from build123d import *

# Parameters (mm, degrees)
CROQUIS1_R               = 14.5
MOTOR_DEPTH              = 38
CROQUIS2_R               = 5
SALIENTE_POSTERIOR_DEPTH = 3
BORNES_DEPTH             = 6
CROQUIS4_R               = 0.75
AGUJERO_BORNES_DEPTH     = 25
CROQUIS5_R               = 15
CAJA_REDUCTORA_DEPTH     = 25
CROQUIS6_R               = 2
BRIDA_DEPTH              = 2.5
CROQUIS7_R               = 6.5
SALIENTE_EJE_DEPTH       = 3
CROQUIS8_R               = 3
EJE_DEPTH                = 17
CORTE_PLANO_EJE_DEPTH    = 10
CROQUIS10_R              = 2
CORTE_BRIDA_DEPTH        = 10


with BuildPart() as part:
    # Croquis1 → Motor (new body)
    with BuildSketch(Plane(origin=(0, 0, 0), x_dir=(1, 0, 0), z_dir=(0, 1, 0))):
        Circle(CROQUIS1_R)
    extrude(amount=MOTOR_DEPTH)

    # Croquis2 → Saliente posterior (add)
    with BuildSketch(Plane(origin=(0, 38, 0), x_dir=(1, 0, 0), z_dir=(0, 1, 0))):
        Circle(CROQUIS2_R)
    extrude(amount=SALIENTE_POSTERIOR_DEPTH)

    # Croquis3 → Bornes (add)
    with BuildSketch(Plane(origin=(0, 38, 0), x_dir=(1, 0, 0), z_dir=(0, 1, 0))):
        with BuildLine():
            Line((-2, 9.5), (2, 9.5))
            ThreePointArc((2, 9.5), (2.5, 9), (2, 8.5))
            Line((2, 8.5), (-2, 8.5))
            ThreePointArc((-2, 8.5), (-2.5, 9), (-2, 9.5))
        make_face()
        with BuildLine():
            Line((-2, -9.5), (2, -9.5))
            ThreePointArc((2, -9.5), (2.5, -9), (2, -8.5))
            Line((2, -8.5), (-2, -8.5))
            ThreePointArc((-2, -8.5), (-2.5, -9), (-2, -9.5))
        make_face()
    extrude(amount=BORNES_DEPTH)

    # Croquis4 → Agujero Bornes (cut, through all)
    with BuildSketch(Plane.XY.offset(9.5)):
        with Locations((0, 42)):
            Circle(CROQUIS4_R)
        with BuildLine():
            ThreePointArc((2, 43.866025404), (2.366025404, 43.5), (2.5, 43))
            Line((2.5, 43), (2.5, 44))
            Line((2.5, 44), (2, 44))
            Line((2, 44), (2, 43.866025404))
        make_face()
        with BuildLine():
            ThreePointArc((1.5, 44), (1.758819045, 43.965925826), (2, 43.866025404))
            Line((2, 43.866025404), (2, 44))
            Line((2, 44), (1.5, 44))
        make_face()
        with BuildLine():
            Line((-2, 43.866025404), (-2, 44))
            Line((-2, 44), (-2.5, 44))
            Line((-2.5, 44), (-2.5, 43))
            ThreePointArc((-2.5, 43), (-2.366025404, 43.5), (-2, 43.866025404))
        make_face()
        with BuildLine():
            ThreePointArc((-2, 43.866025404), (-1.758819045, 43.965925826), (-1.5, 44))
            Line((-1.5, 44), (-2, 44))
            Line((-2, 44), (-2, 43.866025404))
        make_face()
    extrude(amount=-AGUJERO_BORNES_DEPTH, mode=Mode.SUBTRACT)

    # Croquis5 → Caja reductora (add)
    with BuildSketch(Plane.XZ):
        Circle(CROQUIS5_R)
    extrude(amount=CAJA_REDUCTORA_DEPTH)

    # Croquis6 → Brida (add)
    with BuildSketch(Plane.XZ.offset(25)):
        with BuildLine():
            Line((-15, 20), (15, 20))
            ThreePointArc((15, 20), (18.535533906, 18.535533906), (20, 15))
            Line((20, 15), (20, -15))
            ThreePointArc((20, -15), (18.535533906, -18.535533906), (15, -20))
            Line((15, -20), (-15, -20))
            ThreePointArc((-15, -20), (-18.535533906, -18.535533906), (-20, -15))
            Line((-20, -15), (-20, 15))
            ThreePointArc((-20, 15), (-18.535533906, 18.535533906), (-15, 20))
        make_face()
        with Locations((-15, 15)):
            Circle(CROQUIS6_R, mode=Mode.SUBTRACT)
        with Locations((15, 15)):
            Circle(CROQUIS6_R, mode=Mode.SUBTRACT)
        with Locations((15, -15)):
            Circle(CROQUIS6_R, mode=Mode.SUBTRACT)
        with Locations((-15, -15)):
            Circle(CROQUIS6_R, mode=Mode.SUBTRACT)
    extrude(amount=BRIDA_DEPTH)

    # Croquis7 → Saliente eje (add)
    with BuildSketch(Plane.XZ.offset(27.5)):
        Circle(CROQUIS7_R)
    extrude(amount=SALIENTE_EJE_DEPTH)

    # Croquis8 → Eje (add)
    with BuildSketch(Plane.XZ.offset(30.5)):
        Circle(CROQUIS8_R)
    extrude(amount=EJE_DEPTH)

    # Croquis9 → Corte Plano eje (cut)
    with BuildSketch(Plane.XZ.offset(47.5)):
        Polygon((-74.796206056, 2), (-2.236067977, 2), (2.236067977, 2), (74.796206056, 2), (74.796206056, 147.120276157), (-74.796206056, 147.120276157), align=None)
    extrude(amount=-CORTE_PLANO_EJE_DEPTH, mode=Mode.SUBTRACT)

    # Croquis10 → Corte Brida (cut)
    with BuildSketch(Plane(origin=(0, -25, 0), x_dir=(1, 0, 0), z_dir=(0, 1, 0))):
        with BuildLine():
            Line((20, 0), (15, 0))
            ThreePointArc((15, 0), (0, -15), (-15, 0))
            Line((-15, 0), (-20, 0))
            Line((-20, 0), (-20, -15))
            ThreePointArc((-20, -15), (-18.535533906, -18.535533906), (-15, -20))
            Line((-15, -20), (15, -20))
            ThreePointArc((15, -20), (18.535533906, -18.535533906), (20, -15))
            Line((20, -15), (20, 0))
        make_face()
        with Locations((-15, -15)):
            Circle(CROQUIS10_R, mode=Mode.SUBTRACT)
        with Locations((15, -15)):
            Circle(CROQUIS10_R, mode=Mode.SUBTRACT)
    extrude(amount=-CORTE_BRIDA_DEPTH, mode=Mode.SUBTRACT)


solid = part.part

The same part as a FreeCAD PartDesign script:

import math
import FreeCAD as App
import Part
import Sketcher

V = App.Vector
Q = App.Units.Quantity


def add_polygon(sketch, points):
    """Adds a closed chain of lines whose ends are joined by coincident constraints."""
    first, n = sketch.GeometryCount, len(points)
    for a, b in zip(points, points[1:] + points[:1]):
        sketch.addGeometry(Part.LineSegment(App.Vector(*a, 0), App.Vector(*b, 0)), False)
    for i in range(n):
        sketch.addConstraint(Sketcher.Constraint("Coincident", first + i, 2, first + (i + 1) % n, 1))

doc = App.newDocument("Part")
body = doc.addObject("PartDesign::Body", "Body")

# Sketch on XZ plane
sketch1 = body.newObject("Sketcher::SketchObject", "Sketch")
sketch1.AttachmentSupport = (doc.getObject("XZ_Plane"), [""])
sketch1.MapMode = "FlatFace"
sketch1.addGeometry(Part.Circle(V(0, 0, 0), V(0, 0, 1), 14), False)
sketch1.addConstraint([
    Sketcher.Constraint("Coincident", 0, 3, -1, 1),
    Sketcher.Constraint("Diameter", 0, Q("29 mm")),
])
pad1 = body.newObject("PartDesign::Pad", "Pad")
pad1.Profile = sketch1
pad1.Length = 38
pad1.Reversed = True

# Sketch on XZ plane
sketch2 = body.newObject("Sketcher::SketchObject", "Sketch001")
sketch2.AttachmentSupport = (doc.getObject("XZ_Plane"), [""])
sketch2.MapMode = "FlatFace"
sketch2.AttachmentOffset = App.Placement(V(0, 0, -38), App.Rotation())
sketch2.addGeometry(Part.Circle(V(0, 0, 0), V(0, 0, 1), 5), False)
sketch2.addConstraint([
    Sketcher.Constraint("Coincident", 0, 3, -1, 1),
    Sketcher.Constraint("Diameter", 0, Q("10 mm")),
])
pad2 = body.newObject("PartDesign::Pad", "Pad001")
pad2.Profile = sketch2
pad2.Length = 3
pad2.Reversed = True

# Sketch on XZ plane
sketch3 = body.newObject("Sketcher::SketchObject", "Sketch002")
sketch3.AttachmentSupport = (doc.getObject("XZ_Plane"), [""])
sketch3.MapMode = "FlatFace"
sketch3.AttachmentOffset = App.Placement(V(0, 0, -38), App.Rotation())
sketch3.addGeometry([
    Part.LineSegment(V(2, -9.5, 0), V(-2, -9.5, 0)),  # 0
    Part.ArcOfCircle(Part.Circle(V(-2, -9, 0), V(0, 0, 1), 0.5), math.radians(90), math.radians(270)),  # 1
    Part.LineSegment(V(-2, -8.5, 0), V(2, -8.5, 0)),  # 2
    Part.ArcOfCircle(Part.Circle(V(2, -9, 0), V(0, 0, 1), 0.5), math.radians(-90), math.radians(90)),  # 3
    Part.LineSegment(V(-2, 9.5, 0), V(2, 9.5, 0)),  # 4
    Part.ArcOfCircle(Part.Circle(V(2, 9, 0), V(0, 0, 1), 0.5), math.radians(-90), math.radians(90)),  # 5
    Part.LineSegment(V(2, 8.5, 0), V(-2, 8.5, 0)),  # 6
    Part.ArcOfCircle(Part.Circle(V(-2, 9, 0), V(0, 0, 1), 0.5), math.radians(90), math.radians(270)),  # 7
], False)
sketch3.addConstraint([
    Sketcher.Constraint("Tangent", 0, 2, 1, 2),
    Sketcher.Constraint("Tangent", 1, 1, 2, 1),
    Sketcher.Constraint("Tangent", 2, 2, 3, 2),
    Sketcher.Constraint("Tangent", 3, 1, 0, 1),
    Sketcher.Constraint("Tangent", 4, 2, 5, 2),
    Sketcher.Constraint("Tangent", 5, 1, 6, 1),
    Sketcher.Constraint("Tangent", 6, 2, 7, 2),
    Sketcher.Constraint("Tangent", 7, 1, 4, 1),
    Sketcher.Constraint("Horizontal", 0),
    Sketcher.Constraint("Horizontal", 2),
    Sketcher.Constraint("Horizontal", 4),
    Sketcher.Constraint("Horizontal", 6),
    Sketcher.Constraint("Equal", 3, 5),
    Sketcher.Constraint("Symmetric", 1, 3, 5, 3, -1, 1),
    Sketcher.Constraint("Vertical", 3, 3, 5, 3),
    Sketcher.Constraint("Vertical", 1, 3, 7, 3),
    Sketcher.Constraint("Radius", 1, Q("0.5 mm")),
    Sketcher.Constraint("DistanceX", 0, 2, 0, 1, Q("4 mm")),
    Sketcher.Constraint("DistanceY", 1, 3, -1, 1, Q("9 mm")),
])
pad3 = body.newObject("PartDesign::Pad", "Pad002")
pad3.Profile = sketch3
pad3.Length = 6
pad3.Reversed = True

# Sketch on XY plane
sketch4 = body.newObject("Sketcher::SketchObject", "Sketch003")
sketch4.AttachmentSupport = (doc.getObject("XY_Plane"), [""])
sketch4.MapMode = "FlatFace"
sketch4.AttachmentOffset = App.Placement(V(0, 0, 9.5), App.Rotation())
sketch4.addGeometry([
    Part.Circle(V(0, 42, 0), V(0, 0, 1), 0.8),  # 0
    Part.ArcOfCircle(Part.Circle(V(1.5, 43, 0), V(0, 0, 1), 1), math.radians(0), math.radians(60)),  # 1
    Part.LineSegment(V(2.5, 43, 0), V(2.5, 44, 0)),  # 2
    Part.LineSegment(V(2.5, 44, 0), V(1.5, 44, 0)),  # 3
    Part.ArcOfCircle(Part.Circle(V(1.5, 43, 0), V(0, 0, 1), 1), math.radians(60), math.radians(90)),  # 4
    Part.LineSegment(V(-2.5, 44, 0), V(-2.5, 43, 0)),  # 5
    Part.ArcOfCircle(Part.Circle(V(-1.5, 43, 0), V(0, 0, 1), 1), math.radians(120), math.radians(180)),  # 6
    Part.ArcOfCircle(Part.Circle(V(-1.5, 43, 0), V(0, 0, 1), 1), math.radians(90), math.radians(120)),  # 7
    Part.LineSegment(V(-1.5, 44, 0), V(-2.5, 44, 0)),  # 8
], False)
sketch4.addConstraint([
    Sketcher.Constraint("Tangent", 1, 1, 2, 1),
    Sketcher.Constraint("Coincident", 2, 2, 3, 1),
    Sketcher.Constraint("Tangent", 3, 2, 4, 2),
    Sketcher.Constraint("Tangent", 4, 1, 1, 2),
    Sketcher.Constraint("Tangent", 5, 2, 6, 2),
    Sketcher.Constraint("Tangent", 6, 1, 7, 2),
    Sketcher.Constraint("Tangent", 7, 1, 8, 1),
    Sketcher.Constraint("Coincident", 8, 2, 5, 1),
    Sketcher.Constraint("Vertical", 2),
    Sketcher.Constraint("Horizontal", 3),
    Sketcher.Constraint("Vertical", 5),
    Sketcher.Constraint("Horizontal", 8),
    Sketcher.Constraint("Equal", 1, 4),
    Sketcher.Constraint("Equal", 4, 6),
    Sketcher.Constraint("Equal", 6, 7),
    Sketcher.Constraint("Symmetric", 1, 3, 6, 3, -2),
    Sketcher.Constraint("PointOnObject", 0, 3, -2),
    Sketcher.Constraint("Horizontal", 4, 1, 6, 1),
    Sketcher.Constraint("Radius", 1, Q("1 mm")),
    Sketcher.Constraint("Diameter", 0, Q("1.5 mm")),
    Sketcher.Constraint("DistanceY", -1, 1, 0, 3, Q("42 mm")),
    Sketcher.Constraint("DistanceY", -1, 1, 1, 3, Q("43 mm")),
    Sketcher.Constraint("DistanceX", -1, 1, 4, 1, Q("2 mm")),
    Sketcher.Constraint("DistanceX", 6, 3, 4, 3, Q("3 mm")),
])
pocket1 = body.newObject("PartDesign::Pocket", "Pocket")
pocket1.Profile = sketch4
pocket1.Type = "ThroughAll"

# Sketch on XZ plane
sketch5 = body.newObject("Sketcher::SketchObject", "Sketch004")
sketch5.AttachmentSupport = (doc.getObject("XZ_Plane"), [""])
sketch5.MapMode = "FlatFace"
sketch5.addGeometry(Part.Circle(V(0, 0, 0), V(0, 0, 1), 15), False)
sketch5.addConstraint([
    Sketcher.Constraint("Coincident", 0, 3, -1, 1),
    Sketcher.Constraint("Diameter", 0, Q("30 mm")),
])
pad4 = body.newObject("PartDesign::Pad", "Pad003")
pad4.Profile = sketch5
pad4.Length = 25

# Sketch on XZ plane
sketch6 = body.newObject("Sketcher::SketchObject", "Sketch005")
sketch6.AttachmentSupport = (doc.getObject("XZ_Plane"), [""])
sketch6.MapMode = "FlatFace"
sketch6.AttachmentOffset = App.Placement(V(0, 0, 25), App.Rotation())
sketch6.addGeometry([
    Part.LineSegment(V(15, 20, 0), V(-15, 20, 0)),  # 0
    Part.ArcOfCircle(Part.Circle(V(-15, 15, 0), V(0, 0, 1), 5), math.radians(90), math.radians(180)),  # 1
    Part.LineSegment(V(-20, 15, 0), V(-20, -15, 0)),  # 2
    Part.ArcOfCircle(Part.Circle(V(-15, -15, 0), V(0, 0, 1), 5), math.radians(180), math.radians(270)),  # 3
    Part.LineSegment(V(-15, -20, 0), V(15, -20, 0)),  # 4
    Part.ArcOfCircle(Part.Circle(V(15, -15, 0), V(0, 0, 1), 5), math.radians(-90), math.radians(0)),  # 5
    Part.LineSegment(V(20, -15, 0), V(20, 15, 0)),  # 6
    Part.ArcOfCircle(Part.Circle(V(15, 15, 0), V(0, 0, 1), 5), math.radians(0), math.radians(90)),  # 7
    Part.Circle(V(15, -15, 0), V(0, 0, 1), 2),  # 8
    Part.Circle(V(-15, -15, 0), V(0, 0, 1), 2),  # 9
    Part.Circle(V(15, 15, 0), V(0, 0, 1), 2),  # 10
    Part.Circle(V(-15, 15, 0), V(0, 0, 1), 2),  # 11
], False)
sketch6.addConstraint([
    Sketcher.Constraint("Tangent", 0, 2, 1, 1),
    Sketcher.Constraint("Tangent", 1, 2, 2, 1),
    Sketcher.Constraint("Tangent", 2, 2, 3, 1),
    Sketcher.Constraint("Tangent", 3, 2, 4, 1),
    Sketcher.Constraint("Tangent", 4, 2, 5, 1),
    Sketcher.Constraint("Tangent", 5, 2, 6, 1),
    Sketcher.Constraint("Tangent", 6, 2, 7, 1),
    Sketcher.Constraint("Tangent", 7, 2, 0, 1),
    Sketcher.Constraint("Horizontal", 0),
    Sketcher.Constraint("Vertical", 2),
    Sketcher.Constraint("Horizontal", 4),
    Sketcher.Constraint("Vertical", 6),
    Sketcher.Constraint("Coincident", 8, 3, 5, 3),
    Sketcher.Constraint("Coincident", 9, 3, 3, 3),
    Sketcher.Constraint("Coincident", 10, 3, 7, 3),
    Sketcher.Constraint("Coincident", 11, 3, 1, 3),
    Sketcher.Constraint("Equal", 1, 3),
    Sketcher.Constraint("Equal", 3, 5),
    Sketcher.Constraint("Equal", 5, 7),
    Sketcher.Constraint("Equal", 8, 9),
    Sketcher.Constraint("Equal", 9, 10),
    Sketcher.Constraint("Equal", 10, 11),
    Sketcher.Constraint("Symmetric", 1, 3, 5, 3, -1, 1),
    Sketcher.Constraint("Equal", 4, 2),
    Sketcher.Constraint("Diameter", 8, Q("4 mm")),
    Sketcher.Constraint("Radius", 1, Q("5 mm")),
    Sketcher.Constraint("DistanceX", 0, 2, 0, 1, Q("30 mm")),
])
pad5 = body.newObject("PartDesign::Pad", "Pad004")
pad5.Profile = sketch6
pad5.Length = 2.5

# Sketch on XZ plane
sketch7 = body.newObject("Sketcher::SketchObject", "Sketch006")
sketch7.AttachmentSupport = (doc.getObject("XZ_Plane"), [""])
sketch7.MapMode = "FlatFace"
sketch7.AttachmentOffset = App.Placement(V(0, 0, 27.5), App.Rotation())
sketch7.addGeometry(Part.Circle(V(0, 0, 0), V(0, 0, 1), 6), False)
sketch7.addConstraint([
    Sketcher.Constraint("Coincident", 0, 3, -1, 1),
    Sketcher.Constraint("Diameter", 0, Q("13 mm")),
])
pad6 = body.newObject("PartDesign::Pad", "Pad005")
pad6.Profile = sketch7
pad6.Length = 3

# Sketch on XZ plane
sketch8 = body.newObject("Sketcher::SketchObject", "Sketch007")
sketch8.AttachmentSupport = (doc.getObject("XZ_Plane"), [""])
sketch8.MapMode = "FlatFace"
sketch8.AttachmentOffset = App.Placement(V(0, 0, 30.5), App.Rotation())
sketch8.addGeometry(Part.Circle(V(0, 0, 0), V(0, 0, 1), 3), False)
sketch8.addConstraint([
    Sketcher.Constraint("Coincident", 0, 3, -1, 1),
    Sketcher.Constraint("Diameter", 0, Q("6 mm")),
])
pad7 = body.newObject("PartDesign::Pad", "Pad006")
pad7.Profile = sketch8
pad7.Length = 17

# Sketch on XZ plane
sketch9 = body.newObject("Sketcher::SketchObject", "Sketch008")
sketch9.AttachmentSupport = (doc.getObject("XZ_Plane"), [""])
sketch9.MapMode = "FlatFace"
sketch9.AttachmentOffset = App.Placement(V(0, 0, 47.5), App.Rotation())
add_polygon(sketch9, [(-75, 2), (75, 2), (75, 147), (-75, 147)])  # lines 0-3
sketch9.addConstraint([
    Sketcher.Constraint("Horizontal", 0),
    Sketcher.Constraint("Vertical", 1),
    Sketcher.Constraint("Horizontal", 2),
    Sketcher.Constraint("Vertical", 3),
    Sketcher.Constraint("DistanceY", -1, 1, 0, 2, Q("2 mm")),
    Sketcher.Constraint("DistanceX", 0, 1, 0, 2, Q("149.592412 mm")),
    Sketcher.Constraint("DistanceY", 1, 1, 1, 2, Q("145.120276 mm")),
    Sketcher.Constraint("DistanceX", -1, 1, 0, 2, Q("74.796206 mm")),
])
pocket2 = body.newObject("PartDesign::Pocket", "Pocket001")
pocket2.Profile = sketch9
pocket2.Length = 10

# Sketch on XZ plane
sketch10 = body.newObject("Sketcher::SketchObject", "Sketch009")
sketch10.AttachmentSupport = (doc.getObject("XZ_Plane"), [""])
sketch10.MapMode = "FlatFace"
sketch10.AttachmentOffset = App.Placement(V(0, 0, 25), App.Rotation())
sketch10.addGeometry([
    Part.LineSegment(V(20, 0, 0), V(15, 0, 0)),  # 0
    Part.ArcOfCircle(Part.Circle(V(0, 0, 0), V(0, 0, 1), 15), math.radians(0), math.radians(180)),  # 1
    Part.LineSegment(V(-15, 0, 0), V(-20, 0, 0)),  # 2
    Part.LineSegment(V(-20, 0, 0), V(-20, 15, 0)),  # 3
    Part.ArcOfCircle(Part.Circle(V(-15, 15, 0), V(0, 0, 1), 5), math.radians(90), math.radians(180)),  # 4
    Part.LineSegment(V(-15, 20, 0), V(15, 20, 0)),  # 5
    Part.ArcOfCircle(Part.Circle(V(15, 15, 0), V(0, 0, 1), 5), math.radians(0), math.radians(90)),  # 6
    Part.LineSegment(V(20, 15, 0), V(20, 0, 0)),  # 7
    Part.Circle(V(-15, 15, 0), V(0, 0, 1), 2),  # 8
    Part.Circle(V(15, 15, 0), V(0, 0, 1), 2),  # 9
], False)
sketch10.addConstraint([
    Sketcher.Constraint("Coincident", 0, 2, 1, 1),
    Sketcher.Constraint("Coincident", 1, 2, 2, 1),
    Sketcher.Constraint("Coincident", 2, 2, 3, 1),
    Sketcher.Constraint("Tangent", 3, 2, 4, 2),
    Sketcher.Constraint("Tangent", 4, 1, 5, 1),
    Sketcher.Constraint("Tangent", 5, 2, 6, 2),
    Sketcher.Constraint("Tangent", 6, 1, 7, 1),
    Sketcher.Constraint("Coincident", 7, 2, 0, 1),
    Sketcher.Constraint("Horizontal", 0),
    Sketcher.Constraint("Horizontal", 2),
    Sketcher.Constraint("Vertical", 3),
    Sketcher.Constraint("Horizontal", 5),
    Sketcher.Constraint("Vertical", 7),
    Sketcher.Constraint("Coincident", 1, 3, -1, 1),
    Sketcher.Constraint("Coincident", 8, 3, 4, 3),
    Sketcher.Constraint("Coincident", 9, 3, 6, 3),
    Sketcher.Constraint("Equal", 4, 6),
    Sketcher.Constraint("Equal", 8, 9),
    Sketcher.Constraint("Symmetric", 2, 2, 7, 2, -1, 1),
    Sketcher.Constraint("PointOnObject", 0, 2, -1),
    Sketcher.Constraint("Vertical", 9, 3, 0, 2),
    Sketcher.Constraint("Diameter", 8, Q("4 mm")),
    Sketcher.Constraint("Radius", 1, Q("15 mm")),
    Sketcher.Constraint("Radius", 4, Q("5 mm")),
    Sketcher.Constraint("DistanceY", 3, 1, 3, 2, Q("15 mm")),
])
pocket3 = body.newObject("PartDesign::Pocket", "Pocket002")
pocket3.Profile = sketch10
pocket3.Length = 10
pocket3.Reversed = True

doc.recompute()
